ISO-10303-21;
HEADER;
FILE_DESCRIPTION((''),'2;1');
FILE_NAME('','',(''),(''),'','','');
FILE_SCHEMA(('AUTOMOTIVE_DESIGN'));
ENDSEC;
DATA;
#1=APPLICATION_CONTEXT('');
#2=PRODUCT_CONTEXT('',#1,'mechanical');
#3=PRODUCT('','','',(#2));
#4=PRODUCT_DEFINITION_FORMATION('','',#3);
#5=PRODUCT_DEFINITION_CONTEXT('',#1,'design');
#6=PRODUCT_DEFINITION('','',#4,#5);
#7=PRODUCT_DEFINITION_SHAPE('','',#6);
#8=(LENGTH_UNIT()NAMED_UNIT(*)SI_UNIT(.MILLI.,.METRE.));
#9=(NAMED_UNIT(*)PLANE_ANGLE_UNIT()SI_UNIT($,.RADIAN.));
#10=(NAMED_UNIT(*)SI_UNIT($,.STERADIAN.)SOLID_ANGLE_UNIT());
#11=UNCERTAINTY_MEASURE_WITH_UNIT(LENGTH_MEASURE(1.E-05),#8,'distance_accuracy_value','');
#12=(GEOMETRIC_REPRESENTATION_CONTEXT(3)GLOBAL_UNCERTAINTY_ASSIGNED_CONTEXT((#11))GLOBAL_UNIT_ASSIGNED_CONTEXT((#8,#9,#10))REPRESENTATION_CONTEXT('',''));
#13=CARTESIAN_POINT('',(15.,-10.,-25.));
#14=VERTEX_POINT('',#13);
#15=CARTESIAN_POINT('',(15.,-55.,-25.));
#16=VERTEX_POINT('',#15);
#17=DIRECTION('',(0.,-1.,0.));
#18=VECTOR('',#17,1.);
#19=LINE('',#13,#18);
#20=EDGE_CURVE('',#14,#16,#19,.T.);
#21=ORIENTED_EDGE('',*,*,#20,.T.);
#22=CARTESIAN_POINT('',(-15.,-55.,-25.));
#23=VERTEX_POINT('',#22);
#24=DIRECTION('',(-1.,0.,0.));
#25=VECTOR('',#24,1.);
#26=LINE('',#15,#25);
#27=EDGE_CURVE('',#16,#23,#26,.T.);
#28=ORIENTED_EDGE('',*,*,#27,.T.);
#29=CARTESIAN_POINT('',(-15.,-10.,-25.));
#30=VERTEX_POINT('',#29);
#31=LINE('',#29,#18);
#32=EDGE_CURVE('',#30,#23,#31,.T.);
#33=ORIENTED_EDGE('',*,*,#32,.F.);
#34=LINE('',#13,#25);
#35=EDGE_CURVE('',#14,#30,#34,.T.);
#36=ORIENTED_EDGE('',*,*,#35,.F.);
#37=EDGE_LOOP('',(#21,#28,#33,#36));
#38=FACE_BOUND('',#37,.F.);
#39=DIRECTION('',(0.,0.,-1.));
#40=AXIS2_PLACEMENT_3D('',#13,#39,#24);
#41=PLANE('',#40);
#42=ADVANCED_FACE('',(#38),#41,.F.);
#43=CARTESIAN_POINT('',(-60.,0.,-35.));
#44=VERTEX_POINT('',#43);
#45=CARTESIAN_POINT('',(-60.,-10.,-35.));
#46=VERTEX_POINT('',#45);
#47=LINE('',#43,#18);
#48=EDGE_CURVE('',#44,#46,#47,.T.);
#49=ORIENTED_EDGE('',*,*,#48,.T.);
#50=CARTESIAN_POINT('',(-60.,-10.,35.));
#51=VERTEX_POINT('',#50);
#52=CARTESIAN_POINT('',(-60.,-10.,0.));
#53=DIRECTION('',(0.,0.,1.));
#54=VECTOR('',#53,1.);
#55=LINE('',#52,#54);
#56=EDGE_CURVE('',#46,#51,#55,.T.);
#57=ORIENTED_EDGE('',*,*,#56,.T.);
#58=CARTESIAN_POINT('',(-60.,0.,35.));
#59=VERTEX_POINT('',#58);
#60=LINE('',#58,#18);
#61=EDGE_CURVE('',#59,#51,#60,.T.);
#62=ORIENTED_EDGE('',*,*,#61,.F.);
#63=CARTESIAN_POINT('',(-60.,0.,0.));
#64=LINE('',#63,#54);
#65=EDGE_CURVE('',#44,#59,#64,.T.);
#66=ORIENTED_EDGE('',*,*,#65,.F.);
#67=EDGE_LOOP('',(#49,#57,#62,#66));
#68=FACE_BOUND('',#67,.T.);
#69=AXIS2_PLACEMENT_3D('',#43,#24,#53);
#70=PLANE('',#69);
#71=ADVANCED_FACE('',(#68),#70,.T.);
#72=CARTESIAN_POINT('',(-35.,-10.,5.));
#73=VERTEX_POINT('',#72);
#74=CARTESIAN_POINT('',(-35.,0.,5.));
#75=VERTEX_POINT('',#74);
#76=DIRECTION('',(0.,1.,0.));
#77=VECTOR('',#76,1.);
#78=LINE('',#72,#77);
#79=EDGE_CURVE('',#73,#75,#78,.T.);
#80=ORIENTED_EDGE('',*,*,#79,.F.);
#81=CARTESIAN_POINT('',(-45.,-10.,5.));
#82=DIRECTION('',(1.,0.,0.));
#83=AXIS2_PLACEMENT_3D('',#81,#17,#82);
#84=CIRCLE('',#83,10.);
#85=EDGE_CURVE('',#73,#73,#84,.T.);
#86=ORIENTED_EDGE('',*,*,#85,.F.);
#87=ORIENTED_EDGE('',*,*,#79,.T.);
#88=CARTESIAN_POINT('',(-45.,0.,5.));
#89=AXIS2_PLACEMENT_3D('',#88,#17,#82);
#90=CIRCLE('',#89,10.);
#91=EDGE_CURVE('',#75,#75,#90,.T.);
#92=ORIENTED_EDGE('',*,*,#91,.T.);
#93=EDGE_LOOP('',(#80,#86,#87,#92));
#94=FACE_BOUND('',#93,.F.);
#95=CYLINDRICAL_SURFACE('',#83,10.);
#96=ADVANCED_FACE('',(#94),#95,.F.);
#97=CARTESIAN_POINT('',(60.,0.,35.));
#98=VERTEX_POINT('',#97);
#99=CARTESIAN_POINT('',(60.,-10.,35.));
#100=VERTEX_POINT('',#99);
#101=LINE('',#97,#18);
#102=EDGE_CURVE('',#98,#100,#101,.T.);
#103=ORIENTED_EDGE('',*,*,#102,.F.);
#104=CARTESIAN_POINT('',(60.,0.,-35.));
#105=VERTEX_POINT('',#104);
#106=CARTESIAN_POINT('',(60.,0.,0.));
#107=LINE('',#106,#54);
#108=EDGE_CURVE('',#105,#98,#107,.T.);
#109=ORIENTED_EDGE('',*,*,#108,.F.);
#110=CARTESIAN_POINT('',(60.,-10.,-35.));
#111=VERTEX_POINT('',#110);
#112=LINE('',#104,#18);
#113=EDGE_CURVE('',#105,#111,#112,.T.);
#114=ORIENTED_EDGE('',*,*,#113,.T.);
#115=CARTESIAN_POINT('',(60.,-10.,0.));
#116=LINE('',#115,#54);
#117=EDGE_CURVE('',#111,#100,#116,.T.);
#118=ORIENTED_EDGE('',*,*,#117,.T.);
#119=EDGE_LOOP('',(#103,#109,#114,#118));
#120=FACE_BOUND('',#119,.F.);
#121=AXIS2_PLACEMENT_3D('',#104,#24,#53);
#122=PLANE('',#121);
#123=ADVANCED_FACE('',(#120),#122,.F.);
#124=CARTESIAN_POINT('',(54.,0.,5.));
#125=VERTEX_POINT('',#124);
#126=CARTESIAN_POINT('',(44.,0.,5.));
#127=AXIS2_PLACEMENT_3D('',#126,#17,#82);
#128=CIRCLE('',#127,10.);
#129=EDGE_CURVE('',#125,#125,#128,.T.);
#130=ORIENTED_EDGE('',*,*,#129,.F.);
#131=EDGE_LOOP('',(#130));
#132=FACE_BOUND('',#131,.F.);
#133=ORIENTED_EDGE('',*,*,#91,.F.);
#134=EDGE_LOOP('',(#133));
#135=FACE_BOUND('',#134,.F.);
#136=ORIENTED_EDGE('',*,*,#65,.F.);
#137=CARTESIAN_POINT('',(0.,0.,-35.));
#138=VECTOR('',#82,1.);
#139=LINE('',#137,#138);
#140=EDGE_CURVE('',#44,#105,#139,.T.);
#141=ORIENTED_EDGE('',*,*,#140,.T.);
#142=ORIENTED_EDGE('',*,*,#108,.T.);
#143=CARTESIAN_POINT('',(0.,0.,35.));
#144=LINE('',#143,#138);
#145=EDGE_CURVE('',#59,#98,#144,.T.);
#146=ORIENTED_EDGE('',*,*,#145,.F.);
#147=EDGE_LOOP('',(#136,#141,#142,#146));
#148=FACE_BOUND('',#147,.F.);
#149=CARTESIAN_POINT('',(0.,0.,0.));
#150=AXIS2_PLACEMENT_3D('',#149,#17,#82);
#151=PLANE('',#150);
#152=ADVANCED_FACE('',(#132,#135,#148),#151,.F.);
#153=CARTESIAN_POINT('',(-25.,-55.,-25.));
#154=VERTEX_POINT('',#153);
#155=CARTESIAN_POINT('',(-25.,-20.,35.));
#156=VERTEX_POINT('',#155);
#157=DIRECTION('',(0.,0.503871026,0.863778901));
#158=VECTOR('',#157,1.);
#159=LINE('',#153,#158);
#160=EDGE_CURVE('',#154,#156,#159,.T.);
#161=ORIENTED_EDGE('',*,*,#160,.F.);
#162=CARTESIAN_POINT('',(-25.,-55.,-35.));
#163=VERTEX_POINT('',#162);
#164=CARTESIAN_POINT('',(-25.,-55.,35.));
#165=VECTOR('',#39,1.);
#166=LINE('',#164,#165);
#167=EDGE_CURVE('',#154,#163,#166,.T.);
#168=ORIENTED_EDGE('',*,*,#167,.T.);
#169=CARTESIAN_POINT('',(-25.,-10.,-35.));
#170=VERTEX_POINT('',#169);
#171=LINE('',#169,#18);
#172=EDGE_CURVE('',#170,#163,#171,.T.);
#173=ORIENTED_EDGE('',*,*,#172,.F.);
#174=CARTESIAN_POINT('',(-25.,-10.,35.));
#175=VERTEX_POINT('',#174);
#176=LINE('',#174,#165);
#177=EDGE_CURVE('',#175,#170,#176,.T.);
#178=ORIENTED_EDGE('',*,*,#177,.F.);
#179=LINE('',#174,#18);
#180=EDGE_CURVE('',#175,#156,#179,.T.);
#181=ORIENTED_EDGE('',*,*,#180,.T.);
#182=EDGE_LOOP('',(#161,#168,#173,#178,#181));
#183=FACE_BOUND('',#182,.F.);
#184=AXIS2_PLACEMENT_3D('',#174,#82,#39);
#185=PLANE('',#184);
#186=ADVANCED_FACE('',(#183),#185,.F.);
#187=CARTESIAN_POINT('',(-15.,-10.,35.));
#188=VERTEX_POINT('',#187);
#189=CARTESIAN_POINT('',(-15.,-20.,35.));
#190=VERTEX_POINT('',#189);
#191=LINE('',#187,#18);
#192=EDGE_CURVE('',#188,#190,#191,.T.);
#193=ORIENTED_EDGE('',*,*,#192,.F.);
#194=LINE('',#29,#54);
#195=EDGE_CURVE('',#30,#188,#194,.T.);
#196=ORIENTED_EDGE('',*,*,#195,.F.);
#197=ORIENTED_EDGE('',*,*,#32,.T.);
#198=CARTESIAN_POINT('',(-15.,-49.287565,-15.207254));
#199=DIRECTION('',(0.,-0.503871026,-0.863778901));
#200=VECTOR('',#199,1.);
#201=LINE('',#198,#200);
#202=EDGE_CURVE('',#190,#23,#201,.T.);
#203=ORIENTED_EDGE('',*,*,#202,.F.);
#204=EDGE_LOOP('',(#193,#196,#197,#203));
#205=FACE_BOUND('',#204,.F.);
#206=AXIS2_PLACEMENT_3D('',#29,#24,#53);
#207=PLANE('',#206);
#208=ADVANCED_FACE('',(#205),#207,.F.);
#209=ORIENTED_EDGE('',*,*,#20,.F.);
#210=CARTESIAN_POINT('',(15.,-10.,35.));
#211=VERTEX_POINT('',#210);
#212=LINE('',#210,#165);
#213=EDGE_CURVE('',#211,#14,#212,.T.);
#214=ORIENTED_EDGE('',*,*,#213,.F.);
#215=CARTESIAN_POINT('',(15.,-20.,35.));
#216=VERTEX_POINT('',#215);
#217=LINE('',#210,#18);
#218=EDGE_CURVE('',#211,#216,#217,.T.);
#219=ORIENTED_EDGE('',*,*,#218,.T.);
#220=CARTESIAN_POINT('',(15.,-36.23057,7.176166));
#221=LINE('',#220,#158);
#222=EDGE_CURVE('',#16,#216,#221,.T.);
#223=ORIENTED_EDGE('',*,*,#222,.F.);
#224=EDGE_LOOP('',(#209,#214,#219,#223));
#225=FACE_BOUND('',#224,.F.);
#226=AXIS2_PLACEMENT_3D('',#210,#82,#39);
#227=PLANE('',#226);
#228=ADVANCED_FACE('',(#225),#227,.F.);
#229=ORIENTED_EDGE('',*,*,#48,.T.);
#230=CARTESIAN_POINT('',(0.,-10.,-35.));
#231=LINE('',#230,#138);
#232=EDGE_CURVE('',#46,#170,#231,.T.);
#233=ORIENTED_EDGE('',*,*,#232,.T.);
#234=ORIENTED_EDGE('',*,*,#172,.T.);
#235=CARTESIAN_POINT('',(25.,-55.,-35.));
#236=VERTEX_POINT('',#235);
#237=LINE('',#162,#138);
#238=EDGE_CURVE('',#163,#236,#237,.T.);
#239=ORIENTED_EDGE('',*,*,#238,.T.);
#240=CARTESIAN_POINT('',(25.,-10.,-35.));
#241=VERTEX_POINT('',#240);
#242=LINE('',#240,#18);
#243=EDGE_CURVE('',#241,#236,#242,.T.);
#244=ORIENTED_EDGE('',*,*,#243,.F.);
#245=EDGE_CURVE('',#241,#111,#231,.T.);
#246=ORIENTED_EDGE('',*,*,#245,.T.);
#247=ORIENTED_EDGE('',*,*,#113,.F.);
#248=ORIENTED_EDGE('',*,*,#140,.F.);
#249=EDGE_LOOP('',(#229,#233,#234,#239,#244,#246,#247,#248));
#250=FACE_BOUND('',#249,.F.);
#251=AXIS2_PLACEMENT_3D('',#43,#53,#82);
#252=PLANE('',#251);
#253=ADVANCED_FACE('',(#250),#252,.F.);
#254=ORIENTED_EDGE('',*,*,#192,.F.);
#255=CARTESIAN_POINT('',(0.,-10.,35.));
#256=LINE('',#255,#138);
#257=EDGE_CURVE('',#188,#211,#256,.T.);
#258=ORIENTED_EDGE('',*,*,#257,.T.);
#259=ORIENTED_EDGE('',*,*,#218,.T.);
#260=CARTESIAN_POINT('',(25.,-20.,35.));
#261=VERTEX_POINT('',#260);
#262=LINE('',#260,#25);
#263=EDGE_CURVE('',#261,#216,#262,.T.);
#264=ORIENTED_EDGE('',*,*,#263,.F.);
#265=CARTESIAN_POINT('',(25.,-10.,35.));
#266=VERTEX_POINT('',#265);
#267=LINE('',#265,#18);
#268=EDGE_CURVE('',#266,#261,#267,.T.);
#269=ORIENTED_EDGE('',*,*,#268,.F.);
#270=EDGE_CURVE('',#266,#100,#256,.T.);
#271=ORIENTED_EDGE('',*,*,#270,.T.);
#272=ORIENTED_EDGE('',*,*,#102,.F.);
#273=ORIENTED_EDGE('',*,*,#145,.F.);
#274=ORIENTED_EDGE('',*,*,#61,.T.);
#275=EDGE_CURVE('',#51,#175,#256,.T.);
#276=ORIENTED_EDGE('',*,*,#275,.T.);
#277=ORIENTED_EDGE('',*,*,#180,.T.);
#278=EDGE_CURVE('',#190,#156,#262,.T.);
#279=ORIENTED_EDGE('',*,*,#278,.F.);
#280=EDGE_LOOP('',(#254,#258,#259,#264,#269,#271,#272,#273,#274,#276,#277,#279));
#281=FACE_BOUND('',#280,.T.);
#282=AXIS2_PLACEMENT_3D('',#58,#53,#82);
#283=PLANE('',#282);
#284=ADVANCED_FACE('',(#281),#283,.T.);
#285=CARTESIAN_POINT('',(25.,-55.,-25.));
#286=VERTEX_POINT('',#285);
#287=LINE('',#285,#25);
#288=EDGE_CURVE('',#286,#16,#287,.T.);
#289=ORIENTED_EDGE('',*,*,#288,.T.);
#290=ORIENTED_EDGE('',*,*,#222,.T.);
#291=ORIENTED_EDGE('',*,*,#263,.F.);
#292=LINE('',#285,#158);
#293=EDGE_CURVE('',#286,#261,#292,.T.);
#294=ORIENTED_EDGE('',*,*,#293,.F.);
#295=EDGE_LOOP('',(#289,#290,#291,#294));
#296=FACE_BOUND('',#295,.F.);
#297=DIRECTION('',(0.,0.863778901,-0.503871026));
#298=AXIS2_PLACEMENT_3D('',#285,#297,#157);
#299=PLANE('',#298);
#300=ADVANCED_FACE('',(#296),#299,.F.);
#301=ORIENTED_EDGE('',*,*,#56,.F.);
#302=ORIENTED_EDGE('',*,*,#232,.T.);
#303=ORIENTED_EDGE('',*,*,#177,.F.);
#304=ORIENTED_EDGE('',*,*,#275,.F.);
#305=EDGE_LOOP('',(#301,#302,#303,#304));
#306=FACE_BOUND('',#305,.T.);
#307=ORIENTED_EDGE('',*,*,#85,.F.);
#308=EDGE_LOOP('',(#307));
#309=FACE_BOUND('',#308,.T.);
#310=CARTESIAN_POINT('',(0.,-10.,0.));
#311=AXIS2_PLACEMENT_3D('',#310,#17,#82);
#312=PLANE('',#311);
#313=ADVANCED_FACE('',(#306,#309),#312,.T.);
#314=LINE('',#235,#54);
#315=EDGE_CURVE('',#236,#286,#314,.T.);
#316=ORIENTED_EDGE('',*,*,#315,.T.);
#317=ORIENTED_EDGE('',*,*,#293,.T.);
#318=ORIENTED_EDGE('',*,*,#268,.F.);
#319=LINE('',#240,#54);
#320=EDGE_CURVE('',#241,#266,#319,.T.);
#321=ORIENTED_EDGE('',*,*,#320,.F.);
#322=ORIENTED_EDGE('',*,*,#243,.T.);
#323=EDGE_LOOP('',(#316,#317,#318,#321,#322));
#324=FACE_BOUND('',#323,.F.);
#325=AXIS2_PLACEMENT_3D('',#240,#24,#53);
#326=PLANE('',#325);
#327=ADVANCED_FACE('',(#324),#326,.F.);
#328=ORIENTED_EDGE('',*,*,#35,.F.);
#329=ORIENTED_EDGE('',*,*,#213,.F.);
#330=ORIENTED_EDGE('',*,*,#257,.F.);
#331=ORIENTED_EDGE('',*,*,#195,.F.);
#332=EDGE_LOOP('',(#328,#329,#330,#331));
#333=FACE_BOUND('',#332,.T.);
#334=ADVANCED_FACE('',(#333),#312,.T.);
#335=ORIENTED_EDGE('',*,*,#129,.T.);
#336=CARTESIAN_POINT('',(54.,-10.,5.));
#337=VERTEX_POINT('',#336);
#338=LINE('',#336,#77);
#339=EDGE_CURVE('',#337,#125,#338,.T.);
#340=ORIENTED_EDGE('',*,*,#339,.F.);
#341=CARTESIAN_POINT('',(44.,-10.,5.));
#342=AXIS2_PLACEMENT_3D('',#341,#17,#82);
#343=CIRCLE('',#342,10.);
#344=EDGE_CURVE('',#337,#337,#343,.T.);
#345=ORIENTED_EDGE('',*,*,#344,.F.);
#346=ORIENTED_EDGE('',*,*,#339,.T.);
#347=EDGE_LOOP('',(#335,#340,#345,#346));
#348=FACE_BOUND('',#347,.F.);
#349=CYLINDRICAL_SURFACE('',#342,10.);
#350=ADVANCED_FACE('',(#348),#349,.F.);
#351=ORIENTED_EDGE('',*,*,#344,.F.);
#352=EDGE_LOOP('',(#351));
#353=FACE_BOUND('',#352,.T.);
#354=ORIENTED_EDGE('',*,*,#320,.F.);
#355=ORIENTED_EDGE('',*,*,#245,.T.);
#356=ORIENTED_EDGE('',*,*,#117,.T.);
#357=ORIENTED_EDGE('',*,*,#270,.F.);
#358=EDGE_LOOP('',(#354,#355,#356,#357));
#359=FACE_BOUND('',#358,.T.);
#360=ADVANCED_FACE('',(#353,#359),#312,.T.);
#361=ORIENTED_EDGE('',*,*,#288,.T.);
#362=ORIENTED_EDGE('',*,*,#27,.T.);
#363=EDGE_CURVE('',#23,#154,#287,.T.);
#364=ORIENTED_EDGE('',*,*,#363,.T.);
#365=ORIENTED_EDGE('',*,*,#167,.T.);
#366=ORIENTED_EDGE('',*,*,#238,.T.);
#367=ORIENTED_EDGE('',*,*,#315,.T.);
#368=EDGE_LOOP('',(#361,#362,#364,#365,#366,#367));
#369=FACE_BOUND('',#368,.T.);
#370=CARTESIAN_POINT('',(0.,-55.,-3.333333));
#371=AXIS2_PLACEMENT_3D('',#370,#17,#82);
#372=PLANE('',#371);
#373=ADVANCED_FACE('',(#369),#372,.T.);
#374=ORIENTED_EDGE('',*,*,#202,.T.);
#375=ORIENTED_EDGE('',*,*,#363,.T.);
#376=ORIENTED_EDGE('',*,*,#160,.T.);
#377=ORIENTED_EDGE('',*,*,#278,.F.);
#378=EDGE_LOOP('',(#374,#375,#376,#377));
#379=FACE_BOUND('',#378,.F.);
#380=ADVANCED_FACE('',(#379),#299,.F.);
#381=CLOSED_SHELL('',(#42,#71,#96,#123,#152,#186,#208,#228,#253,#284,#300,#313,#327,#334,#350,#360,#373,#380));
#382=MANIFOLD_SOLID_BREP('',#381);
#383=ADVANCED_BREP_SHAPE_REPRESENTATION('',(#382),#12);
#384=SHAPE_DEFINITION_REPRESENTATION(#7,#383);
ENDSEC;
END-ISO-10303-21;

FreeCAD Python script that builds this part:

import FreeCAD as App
import Part
import Sketcher

V = App.Vector


def add_polygon(sketch, points):
    """Adds a closed chain of lines whose ends are joined by coincident constraints."""
    first, n = sketch.GeometryCount, len(points)
    for a, b in zip(points, points[1:] + points[:1]):
        sketch.addGeometry(Part.LineSegment(App.Vector(*a, 0), App.Vector(*b, 0)), False)
    for i in range(n):
        sketch.addConstraint(Sketcher.Constraint("Coincident", first + i, 2, first + (i + 1) % n, 1))

doc = App.newDocument("Part")
body = doc.addObject("PartDesign::Body", "Body")

# Sketch on XZ plane
sketch1 = doc.addObject("Sketcher::SketchObject", "Sketch")
body.addObject(sketch1)
sketch1.AttachmentSupport = (doc.XZ_Plane, [""])
sketch1.MapMode = "FlatFace"
add_polygon(sketch1, [(-60, 35), (-60, -35), (60, -35), (60, 35)])  # lines 0-3
sketch1.addConstraint([
    Sketcher.Constraint("Vertical", 0),
    Sketcher.Constraint("Horizontal", 1),
    Sketcher.Constraint("Vertical", 2),
    Sketcher.Constraint("Horizontal", 3),
    Sketcher.Constraint("Symmetric", 0, 2, 2, 2, -1, 1),
    Sketcher.Constraint("DistanceX", 1, 1, 1, 2, 120.0),
    Sketcher.Constraint("DistanceY", 0, 2, 0, 1, 70.0),
])
pad1 = doc.addObject("PartDesign::Pad", "Pad")
body.addObject(pad1)
pad1.Profile = sketch1
pad1.Length = 10

# Sketch on XZ plane
sketch2 = doc.addObject("Sketcher::SketchObject", "Sketch001")
body.addObject(sketch2)
sketch2.AttachmentSupport = (doc.XZ_Plane, [""])
sketch2.MapMode = "FlatFace"
sketch2.AttachmentOffset = App.Placement(V(0, 0, 10), App.Rotation())
sketch2.addGeometry([
    Part.Circle(V(-45, 5, 0), V(0, 0, 1), 10),
    Part.Circle(V(44, 5, 0), V(0, 0, 1), 10),
], False)
sketch2.addConstraint([
    Sketcher.Constraint("Equal", 0, 1),
    Sketcher.Constraint("Horizontal", 0, 3, 1, 3),
    Sketcher.Constraint("Diameter", 0, 20.0),
    Sketcher.Constraint("DistanceX", 0, 3, -1, 1, 45.0),
    Sketcher.Constraint("DistanceY", -1, 1, 0, 3, 5.0),
    Sketcher.Constraint("DistanceX", -1, 1, 1, 3, 44.0),
])
pocket1 = doc.addObject("PartDesign::Pocket", "Pocket")
body.addObject(pocket1)
pocket1.Profile = sketch2
pocket1.Type = "ThroughAll"

# Sketch on XZ plane
sketch3 = doc.addObject("Sketcher::SketchObject", "Sketch002")
body.addObject(sketch3)
sketch3.AttachmentSupport = (doc.XZ_Plane, [""])
sketch3.MapMode = "FlatFace"
sketch3.AttachmentOffset = App.Placement(V(0, 0, 10), App.Rotation())
add_polygon(sketch3, [(-15, 35), (-25, 35), (-25, -35), (25, -35), (25, 35), (15, 35), (15, -25), (-15, -25)])  # lines 0-7
sketch3.addConstraint([
    Sketcher.Constraint("Horizontal", 0),
    Sketcher.Constraint("Vertical", 1),
    Sketcher.Constraint("Horizontal", 2),
    Sketcher.Constraint("Vertical", 3),
    Sketcher.Constraint("Horizontal", 4),
    Sketcher.Constraint("Vertical", 5),
    Sketcher.Constraint("Horizontal", 6),
    Sketcher.Constraint("Vertical", 7),
    Sketcher.Constraint("Symmetric", 0, 2, 2, 2, -1, 1),
    Sketcher.Constraint("Symmetric", 4, 2, 7, 2, -2),
    Sketcher.Constraint("DistanceX", 0, 2, 0, 1, 10.0),
    Sketcher.Constraint("DistanceX", 2, 1, 2, 2, 50.0),
    Sketcher.Constraint("DistanceY", 1, 2, 1, 1, 70.0),
    Sketcher.Constraint("DistanceY", 5, 2, 5, 1, 60.0),
])
pad2 = doc.addObject("PartDesign::Pad", "Pad001")
body.addObject(pad2)
pad2.Profile = sketch3
pad2.Length = 45

# Sketch on YZ plane
sketch4 = doc.addObject("Sketcher::SketchObject", "Sketch003")
body.addObject(sketch4)
sketch4.AttachmentSupport = (doc.YZ_Plane, [""])
sketch4.MapMode = "FlatFace"
sketch4.AttachmentOffset = App.Placement(V(0, 0, 25), App.Rotation())
add_polygon(sketch4, [(-55, -25), (-20, 35), (-55, 35)])  # lines 0-2
sketch4.addConstraint([
    Sketcher.Constraint("Horizontal", 1),
    Sketcher.Constraint("Vertical", 2),
    Sketcher.Constraint("DistanceX", 1, 2, 1, 1, 35.0),
    Sketcher.Constraint("DistanceY", 2, 2, 2, 1, 60.0),
    Sketcher.Constraint("DistanceX", 0, 2, -1, 1, 20.0),
    Sketcher.Constraint("DistanceY", -1, 1, 0, 2, 35.0),
])
pocket2 = doc.addObject("PartDesign::Pocket", "Pocket001")
body.addObject(pocket2)
pocket2.Profile = sketch4
pocket2.Type = "ThroughAll"

doc.recompute()
